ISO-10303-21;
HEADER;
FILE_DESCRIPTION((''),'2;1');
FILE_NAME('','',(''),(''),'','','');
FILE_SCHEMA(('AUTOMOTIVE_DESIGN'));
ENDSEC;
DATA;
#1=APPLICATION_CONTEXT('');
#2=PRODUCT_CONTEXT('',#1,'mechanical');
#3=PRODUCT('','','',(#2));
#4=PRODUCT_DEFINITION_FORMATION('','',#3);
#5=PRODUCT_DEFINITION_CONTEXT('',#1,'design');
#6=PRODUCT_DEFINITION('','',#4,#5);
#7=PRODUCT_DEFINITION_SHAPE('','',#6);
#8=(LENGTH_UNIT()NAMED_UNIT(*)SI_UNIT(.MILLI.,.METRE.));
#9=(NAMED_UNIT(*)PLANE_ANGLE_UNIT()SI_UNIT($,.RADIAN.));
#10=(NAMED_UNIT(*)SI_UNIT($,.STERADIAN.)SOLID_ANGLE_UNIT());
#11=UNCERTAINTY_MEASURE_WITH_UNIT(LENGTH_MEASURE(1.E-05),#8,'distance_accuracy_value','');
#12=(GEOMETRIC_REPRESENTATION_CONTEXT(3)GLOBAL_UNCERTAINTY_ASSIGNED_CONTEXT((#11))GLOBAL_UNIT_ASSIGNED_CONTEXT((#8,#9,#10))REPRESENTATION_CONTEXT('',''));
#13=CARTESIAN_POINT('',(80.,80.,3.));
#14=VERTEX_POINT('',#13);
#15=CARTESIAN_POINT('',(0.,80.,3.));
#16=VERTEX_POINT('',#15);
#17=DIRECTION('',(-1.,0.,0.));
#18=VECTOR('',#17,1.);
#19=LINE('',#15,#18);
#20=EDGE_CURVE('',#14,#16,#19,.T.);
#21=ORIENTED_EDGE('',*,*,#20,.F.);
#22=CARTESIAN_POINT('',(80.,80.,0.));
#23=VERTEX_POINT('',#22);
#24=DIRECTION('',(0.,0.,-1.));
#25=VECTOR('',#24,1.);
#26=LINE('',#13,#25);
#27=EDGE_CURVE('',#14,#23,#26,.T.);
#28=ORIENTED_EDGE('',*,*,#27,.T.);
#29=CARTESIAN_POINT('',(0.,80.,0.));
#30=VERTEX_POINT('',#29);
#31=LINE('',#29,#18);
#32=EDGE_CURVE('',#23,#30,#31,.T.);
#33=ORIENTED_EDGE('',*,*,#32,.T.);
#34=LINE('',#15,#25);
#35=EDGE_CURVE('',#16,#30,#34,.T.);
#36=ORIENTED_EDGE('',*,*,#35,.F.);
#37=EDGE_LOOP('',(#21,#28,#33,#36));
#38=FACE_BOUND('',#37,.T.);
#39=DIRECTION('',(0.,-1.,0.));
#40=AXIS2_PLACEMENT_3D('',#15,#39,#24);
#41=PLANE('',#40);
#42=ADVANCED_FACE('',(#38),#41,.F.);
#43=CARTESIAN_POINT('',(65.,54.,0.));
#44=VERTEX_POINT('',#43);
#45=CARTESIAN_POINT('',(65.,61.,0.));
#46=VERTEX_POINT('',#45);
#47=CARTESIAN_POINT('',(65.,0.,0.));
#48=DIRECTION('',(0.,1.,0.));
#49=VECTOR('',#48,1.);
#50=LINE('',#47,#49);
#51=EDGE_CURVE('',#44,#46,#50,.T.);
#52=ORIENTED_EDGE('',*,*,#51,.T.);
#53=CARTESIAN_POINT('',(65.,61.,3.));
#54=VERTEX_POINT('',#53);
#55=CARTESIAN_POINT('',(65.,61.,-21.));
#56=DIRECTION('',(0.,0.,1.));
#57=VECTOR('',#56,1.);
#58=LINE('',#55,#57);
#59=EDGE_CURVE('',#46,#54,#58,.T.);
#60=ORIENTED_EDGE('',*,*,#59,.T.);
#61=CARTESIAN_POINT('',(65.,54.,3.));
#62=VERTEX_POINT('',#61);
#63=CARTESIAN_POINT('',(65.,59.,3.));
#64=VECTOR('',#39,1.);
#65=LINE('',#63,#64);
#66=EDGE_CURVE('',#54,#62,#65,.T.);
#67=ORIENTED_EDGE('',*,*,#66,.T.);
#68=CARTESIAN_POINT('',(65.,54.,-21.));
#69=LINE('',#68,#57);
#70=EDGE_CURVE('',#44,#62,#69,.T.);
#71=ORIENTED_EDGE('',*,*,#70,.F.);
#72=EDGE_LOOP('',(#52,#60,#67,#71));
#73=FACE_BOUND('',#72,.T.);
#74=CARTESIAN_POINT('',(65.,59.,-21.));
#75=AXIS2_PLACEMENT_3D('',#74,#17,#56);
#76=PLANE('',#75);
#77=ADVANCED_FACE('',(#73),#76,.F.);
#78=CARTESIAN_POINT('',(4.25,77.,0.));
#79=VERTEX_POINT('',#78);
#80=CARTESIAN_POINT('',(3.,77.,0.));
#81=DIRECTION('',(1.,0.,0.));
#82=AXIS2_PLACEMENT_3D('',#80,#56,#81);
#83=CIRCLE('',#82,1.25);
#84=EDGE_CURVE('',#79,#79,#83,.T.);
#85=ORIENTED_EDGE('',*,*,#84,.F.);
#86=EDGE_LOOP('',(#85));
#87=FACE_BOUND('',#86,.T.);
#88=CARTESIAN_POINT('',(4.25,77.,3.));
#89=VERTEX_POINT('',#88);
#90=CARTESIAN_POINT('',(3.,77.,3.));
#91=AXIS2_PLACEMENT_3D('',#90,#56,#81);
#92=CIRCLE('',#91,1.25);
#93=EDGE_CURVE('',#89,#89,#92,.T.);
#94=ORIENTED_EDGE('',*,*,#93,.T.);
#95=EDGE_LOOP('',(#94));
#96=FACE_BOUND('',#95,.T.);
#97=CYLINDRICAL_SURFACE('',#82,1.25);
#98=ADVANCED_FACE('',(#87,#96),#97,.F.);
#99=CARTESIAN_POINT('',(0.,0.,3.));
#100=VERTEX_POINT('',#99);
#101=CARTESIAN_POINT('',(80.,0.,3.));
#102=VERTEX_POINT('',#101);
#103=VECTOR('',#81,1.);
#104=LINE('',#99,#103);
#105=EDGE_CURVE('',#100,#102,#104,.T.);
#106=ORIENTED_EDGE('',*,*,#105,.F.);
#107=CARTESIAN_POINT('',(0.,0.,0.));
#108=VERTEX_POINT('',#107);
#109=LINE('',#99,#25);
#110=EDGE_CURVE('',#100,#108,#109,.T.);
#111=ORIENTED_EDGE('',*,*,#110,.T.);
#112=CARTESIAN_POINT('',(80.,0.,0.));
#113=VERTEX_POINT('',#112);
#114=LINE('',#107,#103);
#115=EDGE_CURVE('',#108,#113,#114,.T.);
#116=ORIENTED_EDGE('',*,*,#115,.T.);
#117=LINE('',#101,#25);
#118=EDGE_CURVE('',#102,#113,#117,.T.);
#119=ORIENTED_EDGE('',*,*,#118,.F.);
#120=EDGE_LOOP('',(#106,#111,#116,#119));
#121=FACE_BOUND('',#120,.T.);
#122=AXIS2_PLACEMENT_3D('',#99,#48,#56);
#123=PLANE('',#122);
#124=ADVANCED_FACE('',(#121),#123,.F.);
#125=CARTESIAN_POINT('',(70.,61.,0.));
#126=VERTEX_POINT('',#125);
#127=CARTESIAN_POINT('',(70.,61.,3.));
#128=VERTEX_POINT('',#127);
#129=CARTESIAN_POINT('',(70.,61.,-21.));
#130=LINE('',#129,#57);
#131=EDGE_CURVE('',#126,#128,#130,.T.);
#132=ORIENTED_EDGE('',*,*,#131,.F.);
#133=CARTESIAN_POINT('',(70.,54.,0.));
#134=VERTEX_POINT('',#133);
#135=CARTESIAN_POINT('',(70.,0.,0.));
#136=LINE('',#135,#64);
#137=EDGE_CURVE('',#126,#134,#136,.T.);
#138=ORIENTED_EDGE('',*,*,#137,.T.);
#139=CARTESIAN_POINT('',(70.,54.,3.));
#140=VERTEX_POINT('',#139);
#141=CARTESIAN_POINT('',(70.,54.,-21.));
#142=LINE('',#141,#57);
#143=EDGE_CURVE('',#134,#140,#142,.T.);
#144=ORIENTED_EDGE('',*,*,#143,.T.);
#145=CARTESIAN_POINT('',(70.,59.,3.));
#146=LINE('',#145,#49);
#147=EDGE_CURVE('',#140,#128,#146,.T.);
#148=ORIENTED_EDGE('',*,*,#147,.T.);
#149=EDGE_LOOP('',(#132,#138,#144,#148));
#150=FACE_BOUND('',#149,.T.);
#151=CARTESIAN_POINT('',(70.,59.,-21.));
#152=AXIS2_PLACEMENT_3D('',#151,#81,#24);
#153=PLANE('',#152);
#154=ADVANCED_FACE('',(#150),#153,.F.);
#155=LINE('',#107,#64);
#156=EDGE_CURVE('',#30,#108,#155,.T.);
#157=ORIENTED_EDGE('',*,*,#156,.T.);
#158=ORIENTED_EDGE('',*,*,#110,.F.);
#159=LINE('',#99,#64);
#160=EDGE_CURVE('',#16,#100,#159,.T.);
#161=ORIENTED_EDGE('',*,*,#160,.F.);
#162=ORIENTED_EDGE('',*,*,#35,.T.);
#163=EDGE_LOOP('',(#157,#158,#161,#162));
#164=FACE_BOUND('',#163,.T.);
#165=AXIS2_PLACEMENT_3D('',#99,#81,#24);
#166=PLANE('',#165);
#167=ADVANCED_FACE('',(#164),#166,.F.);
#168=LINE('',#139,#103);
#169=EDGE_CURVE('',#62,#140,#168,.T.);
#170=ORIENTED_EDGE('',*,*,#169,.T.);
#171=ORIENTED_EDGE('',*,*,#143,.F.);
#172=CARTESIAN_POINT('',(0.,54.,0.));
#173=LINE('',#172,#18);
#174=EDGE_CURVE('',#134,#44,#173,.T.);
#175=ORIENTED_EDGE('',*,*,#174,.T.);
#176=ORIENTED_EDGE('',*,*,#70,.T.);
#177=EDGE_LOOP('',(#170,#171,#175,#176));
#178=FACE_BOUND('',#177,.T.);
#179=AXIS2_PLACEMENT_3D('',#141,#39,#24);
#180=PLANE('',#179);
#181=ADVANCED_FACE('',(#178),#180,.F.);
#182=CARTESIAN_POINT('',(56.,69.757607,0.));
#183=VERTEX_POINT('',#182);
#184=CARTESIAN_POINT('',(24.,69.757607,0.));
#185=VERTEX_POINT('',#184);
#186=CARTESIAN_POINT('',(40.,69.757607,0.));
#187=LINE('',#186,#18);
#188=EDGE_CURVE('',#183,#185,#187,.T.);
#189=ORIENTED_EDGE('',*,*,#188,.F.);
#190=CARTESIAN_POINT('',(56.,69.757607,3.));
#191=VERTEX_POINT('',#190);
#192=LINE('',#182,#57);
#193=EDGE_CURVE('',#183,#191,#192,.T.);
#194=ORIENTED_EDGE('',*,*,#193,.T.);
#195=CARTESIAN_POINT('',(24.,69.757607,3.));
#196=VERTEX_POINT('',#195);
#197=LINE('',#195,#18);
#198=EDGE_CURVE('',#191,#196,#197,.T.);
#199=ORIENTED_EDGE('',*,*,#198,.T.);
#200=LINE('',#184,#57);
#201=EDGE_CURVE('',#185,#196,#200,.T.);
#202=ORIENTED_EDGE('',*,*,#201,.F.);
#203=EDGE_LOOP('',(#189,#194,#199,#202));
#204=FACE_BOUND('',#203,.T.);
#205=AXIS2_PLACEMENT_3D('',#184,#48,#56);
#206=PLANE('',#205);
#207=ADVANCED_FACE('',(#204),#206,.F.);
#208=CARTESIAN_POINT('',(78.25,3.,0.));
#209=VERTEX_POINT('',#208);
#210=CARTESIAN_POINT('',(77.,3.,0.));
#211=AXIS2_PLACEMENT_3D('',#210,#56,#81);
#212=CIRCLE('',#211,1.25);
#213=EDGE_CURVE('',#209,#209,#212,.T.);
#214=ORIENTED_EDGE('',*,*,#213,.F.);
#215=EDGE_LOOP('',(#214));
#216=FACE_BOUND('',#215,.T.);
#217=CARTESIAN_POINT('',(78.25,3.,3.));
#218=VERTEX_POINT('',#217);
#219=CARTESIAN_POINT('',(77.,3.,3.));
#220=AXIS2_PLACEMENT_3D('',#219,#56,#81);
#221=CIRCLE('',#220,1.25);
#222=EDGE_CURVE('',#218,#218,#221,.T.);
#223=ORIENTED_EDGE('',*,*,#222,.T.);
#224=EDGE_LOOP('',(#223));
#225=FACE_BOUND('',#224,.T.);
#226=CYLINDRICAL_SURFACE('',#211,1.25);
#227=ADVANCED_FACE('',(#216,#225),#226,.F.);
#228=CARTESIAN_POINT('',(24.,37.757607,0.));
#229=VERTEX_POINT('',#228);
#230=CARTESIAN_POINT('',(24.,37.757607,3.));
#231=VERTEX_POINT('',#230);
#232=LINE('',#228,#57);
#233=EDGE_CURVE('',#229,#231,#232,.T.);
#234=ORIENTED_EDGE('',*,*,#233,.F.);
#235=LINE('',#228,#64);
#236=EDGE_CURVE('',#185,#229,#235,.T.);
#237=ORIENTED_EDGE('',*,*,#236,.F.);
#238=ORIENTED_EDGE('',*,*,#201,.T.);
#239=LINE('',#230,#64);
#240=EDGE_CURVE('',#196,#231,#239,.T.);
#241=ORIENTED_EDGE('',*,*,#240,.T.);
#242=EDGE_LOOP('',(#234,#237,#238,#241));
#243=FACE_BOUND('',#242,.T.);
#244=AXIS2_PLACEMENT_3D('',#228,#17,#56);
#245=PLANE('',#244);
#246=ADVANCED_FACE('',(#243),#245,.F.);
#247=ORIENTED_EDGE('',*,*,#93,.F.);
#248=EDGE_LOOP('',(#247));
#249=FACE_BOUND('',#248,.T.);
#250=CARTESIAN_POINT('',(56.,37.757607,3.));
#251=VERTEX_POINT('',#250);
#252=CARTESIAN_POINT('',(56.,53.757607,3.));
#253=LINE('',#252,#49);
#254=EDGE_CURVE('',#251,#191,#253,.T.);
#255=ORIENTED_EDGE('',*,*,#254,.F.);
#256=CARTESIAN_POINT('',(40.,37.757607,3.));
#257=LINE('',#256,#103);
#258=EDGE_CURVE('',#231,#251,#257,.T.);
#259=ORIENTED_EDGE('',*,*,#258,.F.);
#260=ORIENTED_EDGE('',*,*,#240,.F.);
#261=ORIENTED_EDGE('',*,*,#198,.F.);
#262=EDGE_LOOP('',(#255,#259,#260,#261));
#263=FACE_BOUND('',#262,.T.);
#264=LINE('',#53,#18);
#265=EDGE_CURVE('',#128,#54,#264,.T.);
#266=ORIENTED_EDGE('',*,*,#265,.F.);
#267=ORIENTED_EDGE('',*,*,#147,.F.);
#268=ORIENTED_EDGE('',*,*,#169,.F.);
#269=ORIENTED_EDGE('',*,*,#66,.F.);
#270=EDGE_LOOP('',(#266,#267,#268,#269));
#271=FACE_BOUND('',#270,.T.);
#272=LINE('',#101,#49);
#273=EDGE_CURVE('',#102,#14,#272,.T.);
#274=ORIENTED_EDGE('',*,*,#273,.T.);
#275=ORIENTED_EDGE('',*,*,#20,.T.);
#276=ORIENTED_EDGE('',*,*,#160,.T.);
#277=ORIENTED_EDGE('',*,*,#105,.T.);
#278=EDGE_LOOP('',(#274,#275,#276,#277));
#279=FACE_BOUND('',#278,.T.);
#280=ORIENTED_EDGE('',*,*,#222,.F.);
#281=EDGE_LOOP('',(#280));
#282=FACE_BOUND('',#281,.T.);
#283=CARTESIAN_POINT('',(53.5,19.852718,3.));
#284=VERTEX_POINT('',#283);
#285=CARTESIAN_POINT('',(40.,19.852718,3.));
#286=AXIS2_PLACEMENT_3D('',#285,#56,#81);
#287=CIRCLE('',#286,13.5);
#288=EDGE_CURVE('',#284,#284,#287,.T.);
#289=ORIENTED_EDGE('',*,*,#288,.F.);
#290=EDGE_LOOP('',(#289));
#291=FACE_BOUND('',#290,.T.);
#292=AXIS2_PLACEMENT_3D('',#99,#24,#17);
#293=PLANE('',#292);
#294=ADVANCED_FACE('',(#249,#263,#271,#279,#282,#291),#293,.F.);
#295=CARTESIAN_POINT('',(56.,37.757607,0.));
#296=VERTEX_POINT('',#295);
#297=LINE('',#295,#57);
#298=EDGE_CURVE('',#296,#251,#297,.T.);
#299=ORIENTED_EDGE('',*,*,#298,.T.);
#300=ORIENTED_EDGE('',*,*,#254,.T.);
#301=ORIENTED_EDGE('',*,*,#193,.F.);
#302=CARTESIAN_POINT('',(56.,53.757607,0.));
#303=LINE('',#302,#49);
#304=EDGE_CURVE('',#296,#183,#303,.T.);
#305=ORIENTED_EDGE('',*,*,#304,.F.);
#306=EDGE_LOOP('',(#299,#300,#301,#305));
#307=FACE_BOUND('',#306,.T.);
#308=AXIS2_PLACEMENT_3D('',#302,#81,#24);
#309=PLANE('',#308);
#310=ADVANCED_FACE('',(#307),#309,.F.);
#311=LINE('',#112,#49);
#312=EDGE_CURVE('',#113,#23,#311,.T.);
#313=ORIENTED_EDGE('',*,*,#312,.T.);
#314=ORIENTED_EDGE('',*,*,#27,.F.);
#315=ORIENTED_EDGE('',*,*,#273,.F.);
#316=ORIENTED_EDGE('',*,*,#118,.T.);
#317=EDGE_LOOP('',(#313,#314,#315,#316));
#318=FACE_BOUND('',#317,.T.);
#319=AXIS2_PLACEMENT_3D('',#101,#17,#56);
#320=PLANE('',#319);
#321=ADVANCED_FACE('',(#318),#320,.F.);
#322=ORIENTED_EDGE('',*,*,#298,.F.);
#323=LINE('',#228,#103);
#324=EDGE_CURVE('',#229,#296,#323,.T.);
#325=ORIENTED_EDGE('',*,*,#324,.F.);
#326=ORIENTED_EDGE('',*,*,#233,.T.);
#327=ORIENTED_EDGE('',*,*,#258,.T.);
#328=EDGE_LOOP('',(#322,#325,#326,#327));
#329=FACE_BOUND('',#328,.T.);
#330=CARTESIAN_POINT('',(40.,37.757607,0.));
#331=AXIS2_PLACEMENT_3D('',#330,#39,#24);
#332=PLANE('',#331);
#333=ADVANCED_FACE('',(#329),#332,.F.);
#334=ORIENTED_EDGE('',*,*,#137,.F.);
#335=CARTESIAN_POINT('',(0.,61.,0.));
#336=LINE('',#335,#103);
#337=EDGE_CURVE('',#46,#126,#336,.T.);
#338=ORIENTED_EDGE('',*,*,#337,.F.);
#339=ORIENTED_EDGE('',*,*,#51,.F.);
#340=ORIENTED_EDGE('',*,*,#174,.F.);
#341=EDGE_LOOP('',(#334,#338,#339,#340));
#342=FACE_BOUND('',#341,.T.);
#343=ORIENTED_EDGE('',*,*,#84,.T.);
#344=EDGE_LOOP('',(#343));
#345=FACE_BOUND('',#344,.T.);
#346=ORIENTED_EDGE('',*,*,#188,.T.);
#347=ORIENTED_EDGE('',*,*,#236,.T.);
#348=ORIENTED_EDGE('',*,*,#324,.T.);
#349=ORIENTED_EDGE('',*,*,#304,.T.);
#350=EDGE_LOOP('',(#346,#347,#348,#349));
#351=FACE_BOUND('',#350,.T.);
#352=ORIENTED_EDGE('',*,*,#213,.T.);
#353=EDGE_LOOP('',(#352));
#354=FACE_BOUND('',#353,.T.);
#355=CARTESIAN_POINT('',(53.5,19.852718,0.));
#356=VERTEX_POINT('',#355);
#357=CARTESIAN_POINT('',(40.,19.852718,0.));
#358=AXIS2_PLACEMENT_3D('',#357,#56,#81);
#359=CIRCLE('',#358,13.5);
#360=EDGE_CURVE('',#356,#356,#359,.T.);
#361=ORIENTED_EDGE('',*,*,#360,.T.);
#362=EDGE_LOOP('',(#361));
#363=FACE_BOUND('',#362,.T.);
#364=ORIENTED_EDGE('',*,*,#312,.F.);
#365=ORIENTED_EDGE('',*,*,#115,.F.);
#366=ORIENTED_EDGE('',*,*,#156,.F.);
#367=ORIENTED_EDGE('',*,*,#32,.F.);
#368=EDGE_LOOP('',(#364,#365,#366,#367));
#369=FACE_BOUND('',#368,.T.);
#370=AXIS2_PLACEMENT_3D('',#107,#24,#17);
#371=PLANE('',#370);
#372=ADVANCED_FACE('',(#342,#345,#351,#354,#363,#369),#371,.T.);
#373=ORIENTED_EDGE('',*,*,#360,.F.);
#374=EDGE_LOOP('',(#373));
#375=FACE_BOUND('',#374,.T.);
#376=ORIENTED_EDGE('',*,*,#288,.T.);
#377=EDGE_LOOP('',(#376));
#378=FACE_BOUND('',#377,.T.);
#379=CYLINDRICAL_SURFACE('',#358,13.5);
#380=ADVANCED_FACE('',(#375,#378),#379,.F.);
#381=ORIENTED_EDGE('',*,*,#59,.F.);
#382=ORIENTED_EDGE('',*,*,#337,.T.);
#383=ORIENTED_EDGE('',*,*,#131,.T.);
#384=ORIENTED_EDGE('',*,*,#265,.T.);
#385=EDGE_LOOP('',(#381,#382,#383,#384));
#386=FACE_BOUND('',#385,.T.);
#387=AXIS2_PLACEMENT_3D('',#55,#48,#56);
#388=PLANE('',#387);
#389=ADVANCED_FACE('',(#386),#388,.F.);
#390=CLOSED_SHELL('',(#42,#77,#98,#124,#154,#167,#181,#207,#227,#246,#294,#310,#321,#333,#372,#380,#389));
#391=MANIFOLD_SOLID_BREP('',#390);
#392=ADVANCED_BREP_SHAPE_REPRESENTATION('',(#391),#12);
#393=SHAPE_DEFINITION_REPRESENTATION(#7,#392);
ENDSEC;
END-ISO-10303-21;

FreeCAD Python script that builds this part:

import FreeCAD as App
import Part
import Sketcher

V = App.Vector
Q = App.Units.Quantity


def add_polygon(sketch, points):
    """Adds a closed chain of lines whose ends are joined by coincident constraints."""
    first, n = sketch.GeometryCount, len(points)
    for a, b in zip(points, points[1:] + points[:1]):
        sketch.addGeometry(Part.LineSegment(App.Vector(*a, 0), App.Vector(*b, 0)), False)
    for i in range(n):
        sketch.addConstraint(Sketcher.Constraint("Coincident", first + i, 2, first + (i + 1) % n, 1))

doc = App.newDocument("Part")
body = doc.addObject("PartDesign::Body", "Body")

# Sketch on XY plane
sketch1 = doc.addObject("Sketcher::SketchObject", "Sketch")
body.addObject(sketch1)
sketch1.AttachmentSupport = (doc.XY_Plane, [""])
sketch1.MapMode = "FlatFace"
add_polygon(sketch1, [(0, 80), (0, 0), (80, 0), (80, 80)])  # lines 0-3
sketch1.addConstraint([
    Sketcher.Constraint("Vertical", 0),
    Sketcher.Constraint("Horizontal", 1),
    Sketcher.Constraint("Vertical", 2),
    Sketcher.Constraint("Horizontal", 3),
    Sketcher.Constraint("Coincident", 0, 2, -1, 1),
    Sketcher.Constraint("Equal", 3, 0),
    Sketcher.Constraint("DistanceX", 1, 1, 1, 2, Q("80 mm")),
])
pad1 = doc.addObject("PartDesign::Pad", "Pad")
body.addObject(pad1)
pad1.Profile = sketch1
pad1.Length = 3

# Sketch on XY plane
sketch2 = doc.addObject("Sketcher::SketchObject", "Sketch001")
body.addObject(sketch2)
sketch2.AttachmentSupport = (doc.XY_Plane, [""])
sketch2.MapMode = "FlatFace"
sketch2.AttachmentOffset = App.Placement(V(0, 0, 3), App.Rotation())
sketch2.addGeometry(Part.Circle(V(3, 77, 0), V(0, 0, 1), 1.2), False)
sketch2.addConstraint([
    Sketcher.Constraint("Diameter", 0, Q("2.5 mm")),
    Sketcher.Constraint("DistanceX", -1, 1, 0, 3, Q("3 mm")),
    Sketcher.Constraint("DistanceY", -1, 1, 0, 3, Q("77 mm")),
])
pocket1 = doc.addObject("PartDesign::Pocket", "Pocket")
body.addObject(pocket1)
pocket1.Profile = sketch2
pocket1.Length = 3

# Sketch on XY plane
sketch3 = doc.addObject("Sketcher::SketchObject", "Sketch002")
body.addObject(sketch3)
sketch3.AttachmentSupport = (doc.XY_Plane, [""])
sketch3.MapMode = "FlatFace"
sketch3.AttachmentOffset = App.Placement(V(0, 0, 3), App.Rotation())
sketch3.addGeometry(Part.Circle(V(77, 3, 0), V(0, 0, 1), 1.2), False)
sketch3.addConstraint([
    Sketcher.Constraint("Diameter", 0, Q("2.5 mm")),
    Sketcher.Constraint("DistanceX", -1, 1, 0, 3, Q("77 mm")),
    Sketcher.Constraint("DistanceY", -1, 1, 0, 3, Q("3 mm")),
])
pocket2 = doc.addObject("PartDesign::Pocket", "Pocket001")
body.addObject(pocket2)
pocket2.Profile = sketch3
pocket2.Length = 3

# Sketch on XY plane
sketch4 = doc.addObject("Sketcher::SketchObject", "Sketch003")
body.addObject(sketch4)
sketch4.AttachmentSupport = (doc.XY_Plane, [""])
sketch4.MapMode = "FlatFace"
sketch4.AttachmentOffset = App.Placement(V(0, 0, 3), App.Rotation())
add_polygon(sketch4, [(56, 38), (56, 70), (24, 70), (24, 38)])  # lines 0-3
sketch4.addConstraint([
    Sketcher.Constraint("Vertical", 0),
    Sketcher.Constraint("Horizontal", 1),
    Sketcher.Constraint("Vertical", 2),
    Sketcher.Constraint("Horizontal", 3),
    Sketcher.Constraint("Equal", 3, 0),
    Sketcher.Constraint("DistanceX", 1, 2, 1, 1, Q("32 mm")),
    Sketcher.Constraint("DistanceX", -1, 1, 0, 2, Q("56 mm")),
    Sketcher.Constraint("DistanceY", -1, 1, 0, 2, Q("69.757607 mm")),
])
pocket3 = doc.addObject("PartDesign::Pocket", "Pocket002")
body.addObject(pocket3)
pocket3.Profile = sketch4
pocket3.Length = 3

# Sketch on XY plane
sketch5 = doc.addObject("Sketcher::SketchObject", "Sketch004")
body.addObject(sketch5)
sketch5.AttachmentSupport = (doc.XY_Plane, [""])
sketch5.MapMode = "FlatFace"
sketch5.AttachmentOffset = App.Placement(V(0, 0, 3), App.Rotation())
sketch5.addGeometry(Part.Circle(V(40, 20, 0), V(0, 0, 1), 14), False)
sketch5.addConstraint([
    Sketcher.Constraint("Diameter", 0, Q("27 mm")),
    Sketcher.Constraint("DistanceX", -1, 1, 0, 3, Q("40 mm")),
    Sketcher.Constraint("DistanceY", -1, 1, 0, 3, Q("19.852718 mm")),
])
pocket4 = doc.addObject("PartDesign::Pocket", "Pocket003")
body.addObject(pocket4)
pocket4.Profile = sketch5
pocket4.Length = 3

# Sketch on XY plane
sketch6 = doc.addObject("Sketcher::SketchObject", "Sketch005")
body.addObject(sketch6)
sketch6.AttachmentSupport = (doc.XY_Plane, [""])
sketch6.MapMode = "FlatFace"
sketch6.AttachmentOffset = App.Placement(V(0, 0, 3), App.Rotation())
add_polygon(sketch6, [(70, 54), (70, 61), (65, 61), (65, 54)])  # lines 0-3
sketch6.addConstraint([
    Sketcher.Constraint("Vertical", 0),
    Sketcher.Constraint("Horizontal", 1),
    Sketcher.Constraint("Vertical", 2),
    Sketcher.Constraint("Horizontal", 3),
    Sketcher.Constraint("DistanceX", 1, 2, 1, 1, Q("5 mm")),
    Sketcher.Constraint("DistanceY", 0, 1, 0, 2, Q("7 mm")),
    Sketcher.Constraint("DistanceX", -1, 1, 0, 2, Q("70 mm")),
    Sketcher.Constraint("DistanceY", -1, 1, 0, 2, Q("61 mm")),
])
pocket5 = doc.addObject("PartDesign::Pocket", "Pocket004")
body.addObject(pocket5)
pocket5.Profile = sketch6
pocket5.Length = 24

doc.recompute()
